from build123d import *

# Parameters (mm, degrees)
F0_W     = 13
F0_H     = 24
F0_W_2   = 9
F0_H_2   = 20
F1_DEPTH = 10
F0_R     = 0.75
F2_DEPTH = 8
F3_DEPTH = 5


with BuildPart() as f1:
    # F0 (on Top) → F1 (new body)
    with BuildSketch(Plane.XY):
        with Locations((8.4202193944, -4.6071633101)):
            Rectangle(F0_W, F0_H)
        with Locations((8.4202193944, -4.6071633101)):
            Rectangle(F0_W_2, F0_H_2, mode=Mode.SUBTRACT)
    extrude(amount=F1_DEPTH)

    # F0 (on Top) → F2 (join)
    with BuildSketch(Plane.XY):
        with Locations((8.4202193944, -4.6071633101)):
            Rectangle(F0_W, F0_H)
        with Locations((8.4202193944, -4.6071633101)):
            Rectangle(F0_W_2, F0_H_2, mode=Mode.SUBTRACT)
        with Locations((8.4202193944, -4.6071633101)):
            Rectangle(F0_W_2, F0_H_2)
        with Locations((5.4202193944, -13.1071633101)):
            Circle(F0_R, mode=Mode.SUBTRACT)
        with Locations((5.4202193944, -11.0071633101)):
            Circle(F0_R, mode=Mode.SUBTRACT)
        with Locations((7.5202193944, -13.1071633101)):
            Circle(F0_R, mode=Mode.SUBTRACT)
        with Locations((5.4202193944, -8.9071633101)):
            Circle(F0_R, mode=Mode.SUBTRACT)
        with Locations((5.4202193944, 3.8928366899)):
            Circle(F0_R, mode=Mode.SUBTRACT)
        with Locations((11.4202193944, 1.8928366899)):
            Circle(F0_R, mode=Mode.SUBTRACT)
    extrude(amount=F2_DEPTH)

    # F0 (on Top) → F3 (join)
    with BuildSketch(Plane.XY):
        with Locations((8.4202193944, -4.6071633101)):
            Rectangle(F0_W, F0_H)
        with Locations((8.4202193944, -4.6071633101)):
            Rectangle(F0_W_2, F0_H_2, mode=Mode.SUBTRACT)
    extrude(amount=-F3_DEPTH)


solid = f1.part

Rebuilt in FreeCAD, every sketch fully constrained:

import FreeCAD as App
import Part
import Sketcher

V = App.Vector
Q = App.Units.Quantity

doc = App.newDocument("Part")
body = doc.addObject("PartDesign::Body", "Body")

# Sketch on XY plane
sketch1 = body.newObject("Sketcher::SketchObject", "Sketch")
sketch1.AttachmentSupport = (doc.getObject("XY_Plane"), [""])
sketch1.MapMode = "FlatFace"
sketch1.addGeometry([
    Part.LineSegment(V(2, 7, 0), V(2, -17, 0)),  # 0
    Part.LineSegment(V(2, -17, 0), V(15, -17, 0)),  # 1
    Part.LineSegment(V(15, -17, 0), V(15, 7, 0)),  # 2
    Part.LineSegment(V(15, 7, 0), V(2, 7, 0)),  # 3
    Part.LineSegment(V(13, -15, 0), V(4, -15, 0)),  # 4
    Part.LineSegment(V(4, -15, 0), V(4, 5, 0)),  # 5
    Part.LineSegment(V(4, 5, 0), V(13, 5, 0)),  # 6
    Part.LineSegment(V(13, 5, 0), V(13, -15, 0)),  # 7
], False)
sketch1.addConstraint([
    Sketcher.Constraint("Coincident", 0, 2, 1, 1),
    Sketcher.Constraint("Coincident", 1, 2, 2, 1),
    Sketcher.Constraint("Coincident", 2, 2, 3, 1),
    Sketcher.Constraint("Coincident", 3, 2, 0, 1),
    Sketcher.Constraint("Coincident", 4, 2, 5, 1),
    Sketcher.Constraint("Coincident", 5, 2, 6, 1),
    Sketcher.Constraint("Coincident", 6, 2, 7, 1),
    Sketcher.Constraint("Coincident", 7, 2, 4, 1),
    Sketcher.Constraint("Vertical", 0),
    Sketcher.Constraint("Horizontal", 1),
    Sketcher.Constraint("Vertical", 2),
    Sketcher.Constraint("Horizontal", 3),
    Sketcher.Constraint("Horizontal", 4),
    Sketcher.Constraint("Vertical", 5),
    Sketcher.Constraint("Horizontal", 6),
    Sketcher.Constraint("Vertical", 7),
    Sketcher.Constraint("DistanceX", 1, 1, 1, 2, Q("13 mm")),
    Sketcher.Constraint("DistanceX", 4, 2, 4, 1, Q("9 mm")),
    Sketcher.Constraint("DistanceY", 0, 2, 0, 1, Q("24 mm")),
    Sketcher.Constraint("DistanceY", 5, 1, 5, 2, Q("20 mm")),
    Sketcher.Constraint("DistanceX", 0, 2, 4, 2, Q("2 mm")),
    Sketcher.Constraint("DistanceY", 0, 2, 4, 2, Q("2 mm")),
    Sketcher.Constraint("DistanceX", -1, 1, 0, 2, Q("1.920219 mm")),
    Sketcher.Constraint("DistanceY", 0, 2, -1, 1, Q("16.607163 mm")),
])
pad1 = body.newObject("PartDesign::Pad", "Pad")
pad1.Profile = sketch1
pad1.Length = 10

# Sketch on XY plane
sketch2 = body.newObject("Sketcher::SketchObject", "Sketch001")
sketch2.AttachmentSupport = (doc.getObject("XY_Plane"), [""])
sketch2.MapMode = "FlatFace"
sketch2.addGeometry([
    Part.LineSegment(V(1.9, 7.4, 0), V(1.9, -16.6, 0)),  # 0
    Part.LineSegment(V(1.9, -16.6, 0), V(14.9, -16.6, 0)),  # 1
    Part.LineSegment(V(14.9, -16.6, 0), V(14.9, 7.4, 0)),  # 2
    Part.LineSegment(V(14.9, 7.4, 0), V(1.9, 7.4, 0)),  # 3
    Part.Circle(V(5.4, -13.1, 0), V(0, 0, 1), 0.8),  # 4
    Part.Circle(V(5.4, -11, 0), V(0, 0, 1), 0.8),  # 5
    Part.Circle(V(7.5, -13.1, 0), V(0, 0, 1), 0.8),  # 6
    Part.Circle(V(5.4, -8.9, 0), V(0, 0, 1), 0.8),  # 7
    Part.Circle(V(5.4, 3.9, 0), V(0, 0, 1), 0.8),  # 8
    Part.Circle(V(11.4, 1.9, 0), V(0, 0, 1), 0.8),  # 9
], False)
sketch2.addConstraint([
    Sketcher.Constraint("Coincident", 0, 2, 1, 1),
    Sketcher.Constraint("Coincident", 1, 2, 2, 1),
    Sketcher.Constraint("Coincident", 2, 2, 3, 1),
    Sketcher.Constraint("Coincident", 3, 2, 0, 1),
    Sketcher.Constraint("Vertical", 0),
    Sketcher.Constraint("Horizontal", 1),
    Sketcher.Constraint("Vertical", 2),
    Sketcher.Constraint("Horizontal", 3),
    Sketcher.Constraint("Equal", 4, 5),
    Sketcher.Constraint("Equal", 5, 6),
    Sketcher.Constraint("Equal", 6, 7),
    Sketcher.Constraint("Equal", 7, 8),
    Sketcher.Constraint("Equal", 8, 9),
    Sketcher.Constraint("Horizontal", 4, 3, 6, 3),
    Sketcher.Constraint("Vertical", 4, 3, 5, 3),
    Sketcher.Constraint("Vertical", 5, 3, 7, 3),
    Sketcher.Constraint("Vertical", 7, 3, 8, 3),
    Sketcher.Constraint("Diameter", 4, Q("1.5 mm")),
    Sketcher.Constraint("DistanceX", 1, 1, 1, 2, Q("13 mm")),
    Sketcher.Constraint("DistanceY", 0, 2, 0, 1, Q("24 mm")),
    Sketcher.Constraint("DistanceY", 4, 3, 8, 3, Q("17 mm")),
    Sketcher.Constraint("DistanceX", 8, 3, 9, 3, Q("6 mm")),
    Sketcher.Constraint("DistanceY", 9, 3, 8, 3, Q("2 mm")),
    Sketcher.Constraint("DistanceY", 4, 3, 5, 3, Q("2.1 mm")),
    Sketcher.Constraint("DistanceX", 4, 3, 6, 3, Q("2.1 mm")),
    Sketcher.Constraint("DistanceY", 5, 3, 7, 3, Q("2.1 mm")),
    Sketcher.Constraint("DistanceX", 0, 2, 4, 3, Q("3.5 mm")),
    Sketcher.Constraint("DistanceY", 0, 2, 4, 3, Q("3.5 mm")),
    Sketcher.Constraint("DistanceX", -1, 1, 4, 3, Q("5.420219 mm")),
    Sketcher.Constraint("DistanceY", 4, 3, -1, 1, Q("13.107163 mm")),
])
pad2 = body.newObject("PartDesign::Pad", "Pad001")
pad2.Profile = sketch2
pad2.Length = 8

# Sketch on XY plane
sketch3 = body.newObject("Sketcher::SketchObject", "Sketch002")
sketch3.AttachmentSupport = (doc.getObject("XY_Plane"), [""])
sketch3.MapMode = "FlatFace"
sketch3.addGeometry([
    Part.LineSegment(V(2, 7, 0), V(2, -17, 0)),  # 0
    Part.LineSegment(V(2, -17, 0), V(15, -17, 0)),  # 1
    Part.LineSegment(V(15, -17, 0), V(15, 7, 0)),  # 2
    Part.LineSegment(V(15, 7, 0), V(2, 7, 0)),  # 3
    Part.LineSegment(V(13, -15, 0), V(4, -15, 0)),  # 4
    Part.LineSegment(V(4, -15, 0), V(4, 5, 0)),  # 5
    Part.LineSegment(V(4, 5, 0), V(13, 5, 0)),  # 6
    Part.LineSegment(V(13, 5, 0), V(13, -15, 0)),  # 7
], False)
sketch3.addConstraint([
    Sketcher.Constraint("Coincident", 0, 2, 1, 1),
    Sketcher.Constraint("Coincident", 1, 2, 2, 1),
    Sketcher.Constraint("Coincident", 2, 2, 3, 1),
    Sketcher.Constraint("Coincident", 3, 2, 0, 1),
    Sketcher.Constraint("Coincident", 4, 2, 5, 1),
    Sketcher.Constraint("Coincident", 5, 2, 6, 1),
    Sketcher.Constraint("Coincident", 6, 2, 7, 1),
    Sketcher.Constraint("Coincident", 7, 2, 4, 1),
    Sketcher.Constraint("Vertical", 0),
    Sketcher.Constraint("Horizontal", 1),
    Sketcher.Constraint("Vertical", 2),
    Sketcher.Constraint("Horizontal", 3),
    Sketcher.Constraint("Horizontal", 4),
    Sketcher.Constraint("Vertical", 5),
    Sketcher.Constraint("Horizontal", 6),
    Sketcher.Constraint("Vertical", 7),
    Sketcher.Constraint("DistanceX", 1, 1, 1, 2, Q("13 mm")),
    Sketcher.Constraint("DistanceX", 4, 2, 4, 1, Q("9 mm")),
    Sketcher.Constraint("DistanceY", 0, 2, 0, 1, Q("24 mm")),
    Sketcher.Constraint("DistanceY", 5, 1, 5, 2, Q("20 mm")),
    Sketcher.Constraint("DistanceX", 0, 2, 4, 2, Q("2 mm")),
    Sketcher.Constraint("DistanceY", 0, 2, 4, 2, Q("2 mm")),
    Sketcher.Constraint("DistanceX", -1, 1, 0, 2, Q("1.920219 mm")),
    Sketcher.Constraint("DistanceY", 0, 2, -1, 1, Q("16.607163 mm")),
])
pad3 = body.newObject("PartDesign::Pad", "Pad002")
pad3.Profile = sketch3
pad3.Length = 5
pad3.Reversed = True

doc.recompute()
